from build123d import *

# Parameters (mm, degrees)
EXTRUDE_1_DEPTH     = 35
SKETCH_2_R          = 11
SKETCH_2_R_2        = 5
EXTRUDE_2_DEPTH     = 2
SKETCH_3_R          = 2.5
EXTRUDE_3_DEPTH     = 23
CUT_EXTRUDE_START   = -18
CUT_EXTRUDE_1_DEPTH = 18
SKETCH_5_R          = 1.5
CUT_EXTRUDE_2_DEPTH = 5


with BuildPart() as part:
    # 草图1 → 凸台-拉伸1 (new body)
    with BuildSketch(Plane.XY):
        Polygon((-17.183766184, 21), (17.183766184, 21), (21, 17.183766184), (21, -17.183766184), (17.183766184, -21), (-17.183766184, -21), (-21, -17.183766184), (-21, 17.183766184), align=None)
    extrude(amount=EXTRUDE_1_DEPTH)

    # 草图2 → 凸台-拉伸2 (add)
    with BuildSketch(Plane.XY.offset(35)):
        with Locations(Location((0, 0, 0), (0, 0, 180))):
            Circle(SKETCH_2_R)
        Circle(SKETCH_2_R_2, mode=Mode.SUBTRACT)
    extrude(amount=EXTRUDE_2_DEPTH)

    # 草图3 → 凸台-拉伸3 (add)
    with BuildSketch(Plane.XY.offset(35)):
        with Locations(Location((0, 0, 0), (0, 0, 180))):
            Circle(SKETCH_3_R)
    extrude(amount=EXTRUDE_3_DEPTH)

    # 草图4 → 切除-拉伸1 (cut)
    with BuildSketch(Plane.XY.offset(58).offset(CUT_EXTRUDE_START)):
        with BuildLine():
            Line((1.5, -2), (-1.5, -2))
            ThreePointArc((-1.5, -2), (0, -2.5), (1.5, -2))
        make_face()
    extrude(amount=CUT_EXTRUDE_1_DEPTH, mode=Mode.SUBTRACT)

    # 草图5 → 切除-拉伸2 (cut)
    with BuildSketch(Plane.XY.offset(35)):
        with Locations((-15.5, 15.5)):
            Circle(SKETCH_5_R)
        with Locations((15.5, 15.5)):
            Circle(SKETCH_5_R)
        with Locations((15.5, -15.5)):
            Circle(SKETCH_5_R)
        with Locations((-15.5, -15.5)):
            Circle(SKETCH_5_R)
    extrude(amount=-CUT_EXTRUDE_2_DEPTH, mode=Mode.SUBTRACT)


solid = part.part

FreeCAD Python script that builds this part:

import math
import FreeCAD as App
import Part
import Sketcher


def add_polygon(sketch, points):
    """Adds a closed chain of lines whose ends are joined by coincident constraints."""
    first, n = sketch.GeometryCount, len(points)
    for a, b in zip(points, points[1:] + points[:1]):
        sketch.addGeometry(Part.LineSegment(App.Vector(*a, 0), App.Vector(*b, 0)), False)
    for i in range(n):
        sketch.addConstraint(Sketcher.Constraint("Coincident", first + i, 2, first + (i + 1) % n, 1))

doc = App.newDocument("Part")
body = doc.addObject("PartDesign::Body", "Body")

# Sketch on XY plane
sketch1 = body.newObject("Sketcher::SketchObject", "Sketch")
sketch1.AttachmentSupport = (doc.getObject("XY_Plane"), [""])
sketch1.MapMode = "FlatFace"
add_polygon(sketch1, [(17.183766, 21), (-17.183766, 21), (-21, 17.183766), (-21, -17.183766), (-17.183766, -21), (17.183766, -21), (21, -17.183766), (21, 17.183766)])  # lines 0-7
sketch1.addConstraint([
    Sketcher.Constraint("Horizontal", 0),
    Sketcher.Constraint("Vertical", 2),
    Sketcher.Constraint("Horizontal", 4),
    Sketcher.Constraint("Vertical", 6),
    Sketcher.Constraint("Symmetric", 0, 2, 4, 2, -1, 1),
    Sketcher.Constraint("Symmetric", 1, 2, 5, 2, -1, 1),
    Sketcher.Constraint("Perpendicular", 1, 3),
    Sketcher.Constraint("Perpendicular", 5, 7),
    Sketcher.Constraint("Horizontal", 2, 2, 5, 2),
    Sketcher.Constraint("Horizontal", 1, 2, 6, 2),
    Sketcher.Constraint("Vertical", 0, 2, 3, 2),
    Sketcher.Constraint("Equal", 4, 2),
    Sketcher.Constraint("DistanceY", -1, 1, 0, 2, 21.0),
    Sketcher.Constraint("Distance", 1, 5.39697),
])
pad1 = body.newObject("PartDesign::Pad", "Pad")
pad1.Profile = sketch1
pad1.Length = 35

# Sketch on XY plane
sketch2 = body.newObject("Sketcher::SketchObject", "Sketch001")
sketch2.AttachmentSupport = (doc.getObject("XY_Plane"), [""])
sketch2.MapMode = "FlatFace"
sketch2.AttachmentOffset = App.Placement(App.Vector(0, 0, 35), App.Rotation())
sketch2.addGeometry([
    Part.Circle(App.Vector(0, 0, 0), App.Vector(0, 0, 1), 11),
    Part.Circle(App.Vector(0, 0, 0), App.Vector(0, 0, 1), 5),
], False)
sketch2.addConstraint([
    Sketcher.Constraint("Coincident", 0, 3, -1, 1),
    Sketcher.Constraint("Coincident", 1, 3, -1, 1),
    Sketcher.Constraint("Diameter", 0, 22.0),
    Sketcher.Constraint("Diameter", 1, 10.0),
])
pad2 = body.newObject("PartDesign::Pad", "Pad001")
pad2.Profile = sketch2
pad2.Length = 2

# Sketch on XY plane
sketch3 = body.newObject("Sketcher::SketchObject", "Sketch002")
sketch3.AttachmentSupport = (doc.getObject("XY_Plane"), [""])
sketch3.MapMode = "FlatFace"
sketch3.AttachmentOffset = App.Placement(App.Vector(0, 0, 35), App.Rotation())
sketch3.addGeometry(Part.Circle(App.Vector(0, 0, 0), App.Vector(0, 0, 1), 2.5), False)
sketch3.addConstraint([
    Sketcher.Constraint("Coincident", 0, 3, -1, 1),
    Sketcher.Constraint("Diameter", 0, 5.0),
])
pad3 = body.newObject("PartDesign::Pad", "Pad002")
pad3.Profile = sketch3
pad3.Length = 23

# Sketch on XY plane
sketch4 = body.newObject("Sketcher::SketchObject", "Sketch003")
sketch4.AttachmentSupport = (doc.getObject("XY_Plane"), [""])
sketch4.MapMode = "FlatFace"
sketch4.AttachmentOffset = App.Placement(App.Vector(0, 0, 40), App.Rotation())
sketch4.addGeometry([
    Part.LineSegment(App.Vector(1.5, -2, 0), App.Vector(-1.5, -2, 0)),
    Part.ArcOfCircle(Part.Circle(App.Vector(0, 0, 0), App.Vector(0, 0, 1), 2.5), math.radians(-126.869898), math.radians(-53.130102)),
], False)
sketch4.addConstraint([
    Sketcher.Constraint("Coincident", 0, 1, 1, 2),
    Sketcher.Constraint("Coincident", 1, 1, 0, 2),
    Sketcher.Constraint("Horizontal", 0),
    Sketcher.Constraint("Coincident", 1, 3, -1, 1),
    Sketcher.Constraint("Radius", 1, 2.5),
    Sketcher.Constraint("DistanceX", 0, 2, 0, 1, 3.0),
])
pocket1 = body.newObject("PartDesign::Pocket", "Pocket")
pocket1.Profile = sketch4
pocket1.Length = 18
pocket1.Reversed = True

# Sketch on XY plane
sketch5 = body.newObject("Sketcher::SketchObject", "Sketch004")
sketch5.AttachmentSupport = (doc.getObject("XY_Plane"), [""])
sketch5.MapMode = "FlatFace"
sketch5.AttachmentOffset = App.Placement(App.Vector(0, 0, 35), App.Rotation())
sketch5.addGeometry([
    Part.Circle(App.Vector(-15.5, 15.5, 0), App.Vector(0, 0, 1), 1.5),
    Part.Circle(App.Vector(15.5, 15.5, 0), App.Vector(0, 0, 1), 1.5),
    Part.Circle(App.Vector(15.5, -15.5, 0), App.Vector(0, 0, 1), 1.5),
    Part.Circle(App.Vector(-15.5, -15.5, 0), App.Vector(0, 0, 1), 1.5),
], False)
sketch5.addConstraint([
    Sketcher.Constraint("Equal", 0, 1),
    Sketcher.Constraint("Equal", 1, 2),
    Sketcher.Constraint("Equal", 2, 3),
    Sketcher.Constraint("Symmetric", 0, 3, 2, 3, -1, 1),
    Sketcher.Constraint("Symmetric", 1, 3, 3, 3, -1, 1),
    Sketcher.Constraint("Symmetric", 0, 3, 1, 3, -2),
    Sketcher.Constraint("Diameter", 0, 3.0),
    Sketcher.Constraint("DistanceX", 0, 3, 1, 3, 31.0),
    Sketcher.Constraint("DistanceY", 2, 3, 1, 3, 31.0),
])
pocket2 = body.newObject("PartDesign::Pocket", "Pocket001")
pocket2.Profile = sketch5
pocket2.Length = 5

doc.recompute()
